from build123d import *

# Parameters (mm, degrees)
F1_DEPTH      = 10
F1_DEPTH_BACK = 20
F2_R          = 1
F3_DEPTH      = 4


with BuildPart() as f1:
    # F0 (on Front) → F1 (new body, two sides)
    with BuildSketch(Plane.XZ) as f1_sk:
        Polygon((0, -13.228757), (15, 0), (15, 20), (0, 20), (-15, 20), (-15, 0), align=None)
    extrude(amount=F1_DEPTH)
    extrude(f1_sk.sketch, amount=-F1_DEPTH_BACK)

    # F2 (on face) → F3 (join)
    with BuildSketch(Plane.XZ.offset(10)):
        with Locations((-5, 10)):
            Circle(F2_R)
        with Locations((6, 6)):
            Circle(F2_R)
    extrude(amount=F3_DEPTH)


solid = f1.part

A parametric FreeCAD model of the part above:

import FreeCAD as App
import Part
import Sketcher

V = App.Vector


def add_polygon(sketch, points):
    """Adds a closed chain of lines whose ends are joined by coincident constraints."""
    first, n = sketch.GeometryCount, len(points)
    for a, b in zip(points, points[1:] + points[:1]):
        sketch.addGeometry(Part.LineSegment(App.Vector(*a, 0), App.Vector(*b, 0)), False)
    for i in range(n):
        sketch.addConstraint(Sketcher.Constraint("Coincident", first + i, 2, first + (i + 1) % n, 1))

doc = App.newDocument("Part")
body = doc.addObject("PartDesign::Body", "Body")

sketch1 = body.newObject("Sketcher::SketchObject", "Sketch")
sketch1.AttachmentSupport = (doc.getObject("XZ_Plane"), [""])
sketch1.MapMode = "FlatFace"
add_polygon(sketch1, [(0, -13.228757), (15, 0), (15, 20), (-15, 20), (-15, 0)])
sketch1.addConstraint(Sketcher.Constraint("Vertical", 1))
sketch1.addConstraint(Sketcher.Constraint("Horizontal", 2))
sketch1.addConstraint(Sketcher.Constraint("Vertical", 3))
sketch1.addConstraint(Sketcher.Constraint("Symmetric", 0, 2, 3, 2, -1, 1))
sketch1.addConstraint(Sketcher.Constraint("PointOnObject", 0, 2, -1))
sketch1.addConstraint(Sketcher.Constraint("PointOnObject", 4, 2, -2))
sketch1.addConstraint(Sketcher.Constraint("DistanceX", 2, 2, 2, 1, 30.0))
sketch1.addConstraint(Sketcher.Constraint("DistanceY", 1, 1, 1, 2, 20.0))
sketch1.addConstraint(Sketcher.Constraint("Distance", 0, 20.0))
pad1 = body.newObject("PartDesign::Pad", "Pad")
pad1.Profile = sketch1
pad1.Type = "TwoLengths"
pad1.Length = 10
pad1.Length2 = 20

sketch2 = body.newObject("Sketcher::SketchObject", "Sketch001")
sketch2.AttachmentSupport = (doc.getObject("XZ_Plane"), [""])
sketch2.MapMode = "FlatFace"
sketch2.AttachmentOffset = App.Placement(V(0, 0, 10), App.Rotation())
sketch2.addGeometry(Part.Circle(V(-5, 10, 0), V(0, 0, 1), 1), False)
sketch2.addGeometry(Part.Circle(V(6, 6, 0), V(0, 0, 1), 1), False)
sketch2.addConstraint(Sketcher.Constraint("Equal", 0, 1))
sketch2.addConstraint(Sketcher.Constraint("Diameter", 0, 2.0))
sketch2.addConstraint(Sketcher.Constraint("DistanceX", 0, 3, -1, 1, 5.0))
sketch2.addConstraint(Sketcher.Constraint("DistanceY", -1, 1, 0, 3, 10.0))
sketch2.addConstraint(Sketcher.Constraint("DistanceX", -1, 1, 1, 3, 6.0))
sketch2.addConstraint(Sketcher.Constraint("DistanceY", -1, 1, 1, 3, 6.0))
pad2 = body.newObject("PartDesign::Pad", "Pad001")
pad2.Profile = sketch2
pad2.Length = 4

doc.recompute()
